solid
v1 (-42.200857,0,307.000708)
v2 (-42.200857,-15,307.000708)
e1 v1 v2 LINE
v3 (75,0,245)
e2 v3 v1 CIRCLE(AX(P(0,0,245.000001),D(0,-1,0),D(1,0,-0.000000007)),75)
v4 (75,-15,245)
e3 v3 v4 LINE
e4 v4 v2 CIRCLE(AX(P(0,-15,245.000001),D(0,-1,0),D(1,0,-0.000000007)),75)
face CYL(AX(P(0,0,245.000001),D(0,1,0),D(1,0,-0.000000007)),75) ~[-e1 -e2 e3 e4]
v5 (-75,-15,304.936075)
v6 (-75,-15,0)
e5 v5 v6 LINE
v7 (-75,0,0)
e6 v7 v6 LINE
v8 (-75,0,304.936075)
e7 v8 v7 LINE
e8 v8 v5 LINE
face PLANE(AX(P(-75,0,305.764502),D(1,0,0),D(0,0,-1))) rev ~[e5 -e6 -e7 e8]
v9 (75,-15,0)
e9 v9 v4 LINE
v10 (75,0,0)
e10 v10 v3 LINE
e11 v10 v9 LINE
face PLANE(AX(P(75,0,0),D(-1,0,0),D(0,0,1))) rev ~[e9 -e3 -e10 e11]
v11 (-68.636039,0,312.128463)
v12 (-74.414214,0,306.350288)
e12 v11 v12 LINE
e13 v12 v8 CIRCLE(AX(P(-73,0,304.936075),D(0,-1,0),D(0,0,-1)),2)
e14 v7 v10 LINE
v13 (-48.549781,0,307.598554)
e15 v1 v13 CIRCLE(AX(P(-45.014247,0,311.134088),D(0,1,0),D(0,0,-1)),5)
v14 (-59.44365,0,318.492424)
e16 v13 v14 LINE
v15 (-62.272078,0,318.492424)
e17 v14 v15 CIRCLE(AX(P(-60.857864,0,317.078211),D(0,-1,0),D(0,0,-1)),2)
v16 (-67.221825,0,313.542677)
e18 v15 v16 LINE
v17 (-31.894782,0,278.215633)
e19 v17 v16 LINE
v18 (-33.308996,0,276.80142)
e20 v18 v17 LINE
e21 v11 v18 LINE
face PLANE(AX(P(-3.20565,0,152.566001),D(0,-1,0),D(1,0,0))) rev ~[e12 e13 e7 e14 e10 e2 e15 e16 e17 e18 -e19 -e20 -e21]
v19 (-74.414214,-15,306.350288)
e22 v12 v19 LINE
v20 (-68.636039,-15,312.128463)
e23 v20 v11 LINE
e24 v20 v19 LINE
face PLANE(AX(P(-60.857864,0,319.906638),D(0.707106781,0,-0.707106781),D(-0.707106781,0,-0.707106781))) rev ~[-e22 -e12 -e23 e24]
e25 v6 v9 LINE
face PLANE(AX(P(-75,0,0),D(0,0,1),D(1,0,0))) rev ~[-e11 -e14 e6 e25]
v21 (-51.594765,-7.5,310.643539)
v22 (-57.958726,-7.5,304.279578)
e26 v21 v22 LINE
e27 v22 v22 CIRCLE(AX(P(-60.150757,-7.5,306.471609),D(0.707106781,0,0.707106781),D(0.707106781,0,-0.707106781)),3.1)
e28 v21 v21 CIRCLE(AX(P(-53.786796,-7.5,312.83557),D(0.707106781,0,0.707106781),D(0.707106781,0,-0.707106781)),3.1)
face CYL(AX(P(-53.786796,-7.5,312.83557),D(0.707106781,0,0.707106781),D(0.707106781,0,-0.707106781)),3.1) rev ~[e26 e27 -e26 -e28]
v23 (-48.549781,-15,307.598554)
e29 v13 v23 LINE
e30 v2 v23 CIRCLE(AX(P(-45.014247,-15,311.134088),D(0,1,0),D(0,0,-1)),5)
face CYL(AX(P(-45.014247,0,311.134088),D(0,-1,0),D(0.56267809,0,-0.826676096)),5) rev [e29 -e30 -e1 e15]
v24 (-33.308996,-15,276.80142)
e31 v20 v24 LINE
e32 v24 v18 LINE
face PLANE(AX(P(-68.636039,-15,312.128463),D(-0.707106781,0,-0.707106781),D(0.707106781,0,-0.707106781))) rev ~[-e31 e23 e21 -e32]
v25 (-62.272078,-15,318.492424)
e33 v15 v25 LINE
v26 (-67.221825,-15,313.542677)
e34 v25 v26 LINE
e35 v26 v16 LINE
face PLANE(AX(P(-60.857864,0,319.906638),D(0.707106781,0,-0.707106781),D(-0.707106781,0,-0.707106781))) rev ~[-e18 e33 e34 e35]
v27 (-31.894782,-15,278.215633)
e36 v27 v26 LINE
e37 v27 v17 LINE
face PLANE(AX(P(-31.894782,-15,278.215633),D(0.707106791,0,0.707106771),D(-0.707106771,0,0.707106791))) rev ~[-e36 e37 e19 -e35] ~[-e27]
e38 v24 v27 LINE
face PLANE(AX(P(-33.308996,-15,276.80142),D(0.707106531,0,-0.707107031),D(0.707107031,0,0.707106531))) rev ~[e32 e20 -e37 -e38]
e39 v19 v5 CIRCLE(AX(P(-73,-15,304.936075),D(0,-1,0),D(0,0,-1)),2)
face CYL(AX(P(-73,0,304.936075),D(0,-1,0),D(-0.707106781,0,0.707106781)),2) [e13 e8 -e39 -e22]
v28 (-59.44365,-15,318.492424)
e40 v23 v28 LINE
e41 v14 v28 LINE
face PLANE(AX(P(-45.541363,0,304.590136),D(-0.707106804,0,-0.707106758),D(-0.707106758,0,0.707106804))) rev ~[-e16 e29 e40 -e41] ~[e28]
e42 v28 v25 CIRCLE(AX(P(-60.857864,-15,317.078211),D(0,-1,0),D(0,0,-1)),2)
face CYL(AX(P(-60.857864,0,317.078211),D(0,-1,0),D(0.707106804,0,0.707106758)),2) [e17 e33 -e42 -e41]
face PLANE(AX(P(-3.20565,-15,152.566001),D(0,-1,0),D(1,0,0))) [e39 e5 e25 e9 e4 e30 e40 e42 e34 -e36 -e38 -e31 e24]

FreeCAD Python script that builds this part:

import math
import FreeCAD as App
import Part
import Sketcher

V = App.Vector
Q = App.Units.Quantity


def edges_at(feature, points):
    """Names of the edges that pass closest to the given points."""
    edges = feature.Shape.Edges
    near = lambda p: min(range(len(edges)), key=lambda i: edges[i].distToShape(Part.Vertex(*p))[0])
    return sorted({f"Edge{near(p) + 1}" for p in points})

doc = App.newDocument("Part")
params = doc.addObject("Spreadsheet::Sheet", "Params")
for row, (alias, value) in enumerate([
    ("sketch1_radius", "75 mm"),
    ("sketch1_height", "245 mm"),
    ("sketch1_length", "20.000001 mm"),
    ("pad1_length", "15 mm"),
    ("fillet_radius", "5 mm"),
    ("fillet2_radius", "2 mm"),
    ("fillet3_radius", "2 mm"),
    ("sketch2_length", "2.000001 mm"),
    ("sketch3_diameter", "6.2 mm"),
    ("pocket2_length", "9 mm"),
], start=1):
    params.set(f"A{row}", alias)
    params.set(f"B{row}", "=" + value)
    params.setAlias(f"B{row}", alias)

body = doc.addObject("PartDesign::Body", "Body")

sketch1 = body.newObject("Sketcher::SketchObject", "Sketch")
sketch1.AttachmentSupport = (doc.getObject("XZ_Plane"), [""])
sketch1.MapMode = "FlatFace"
sketch1.addGeometry([
    Part.LineSegment(V(-75, 306, 0), V(-75, 0, 0)),
    Part.LineSegment(V(-75, 0, 0), V(75, 0, 0)),
    Part.LineSegment(V(75, 0, 0), V(75, 245, 0)),
    Part.ArcOfCircle(Part.Circle(V(0, 245, 0), V(0, 0, 1), 75), math.radians(0), math.radians(127)),
    Part.LineSegment(V(-46, 305, 0), V(-61, 320, 0)),
    Part.LineSegment(V(-61, 320, 0), V(-75, 306, 0)),
], False)
sketch1.addConstraint([
    Sketcher.Constraint("Coincident", 0, 2, 1, 1),
    Sketcher.Constraint("Coincident", 1, 2, 2, 1),
    Sketcher.Constraint("Tangent", 2, 2, 3, 1),
    Sketcher.Constraint("Coincident", 3, 2, 4, 1),
    Sketcher.Constraint("Coincident", 4, 2, 5, 1),
    Sketcher.Constraint("Coincident", 5, 2, 0, 1),
    Sketcher.Constraint("Vertical", 0),
    Sketcher.Constraint("Horizontal", 1),
    Sketcher.Constraint("Vertical", 2),
    Sketcher.Constraint("Symmetric", 0, 2, 1, 2, -1, 1),
    Sketcher.Constraint("PointOnObject", 3, 3, -2),
    Sketcher.Constraint("Perpendicular", 4, 5),
    Sketcher.Constraint("Radius", 3, Q("75 mm")),
    Sketcher.Constraint("DistanceY", 2, 1, 2, 2, Q("245 mm")),
    Sketcher.Constraint("Angle", 4, Q("134.999998 deg")),
    Sketcher.Constraint("Distance", 5, Q("20.000001 mm")),
    Sketcher.Constraint("DistanceY", 0, 2, 0, 1, Q("305.764502 mm")),
])
sketch1.setExpression("Constraints[12]", "Params.sketch1_radius")
sketch1.setExpression("Constraints[13]", "Params.sketch1_height")
sketch1.setExpression("Constraints[15]", "Params.sketch1_length")
pad1 = body.newObject("PartDesign::Pad", "Pad")
pad1.Profile = sketch1
pad1.setExpression("Length", "Params.pad1_length")
doc.recompute()

fillet = body.newObject("PartDesign::Fillet", "Fillet")
fillet.Base = (pad1, edges_at(pad1, [(-45.541, -7.5, 304.59)]))
fillet.setExpression("Radius", "Params.fillet_radius")
doc.recompute()

fillet2 = body.newObject("PartDesign::Fillet", "Fillet001")
fillet2.Base = (fillet, edges_at(fillet, [(-60.858, -7.5, 319.907)]))
fillet2.setExpression("Radius", "Params.fillet2_radius")
doc.recompute()

fillet3 = body.newObject("PartDesign::Fillet", "Fillet002")
fillet3.Base = (fillet2, edges_at(fillet2, [(-75, -7.5, 305.765)]))
fillet3.setExpression("Radius", "Params.fillet3_radius")

sketch2 = body.newObject("Sketcher::SketchObject", "Sketch001")
sketch2.AttachmentSupport = (doc.getObject("XZ_Plane"), [""])
sketch2.MapMode = "FlatFace"
sketch2.AttachmentOffset = App.Placement(V(0, 0, 15), App.Rotation())
sketch2.addGeometry([
    Part.LineSegment(V(-67.2, 313.5, 0), V(-68.6, 312.1, 0)),
    Part.LineSegment(V(-68.6, 312.1, 0), V(-33.3, 276.8, 0)),
    Part.LineSegment(V(-33.3, 276.8, 0), V(-31.9, 278.2, 0)),
    Part.LineSegment(V(-31.9, 278.2, 0), V(-67.2, 313.5, 0)),
], False)
sketch2.addConstraint([
    Sketcher.Constraint("Coincident", 0, 2, 1, 1),
    Sketcher.Constraint("Coincident", 1, 2, 2, 1),
    Sketcher.Constraint("Coincident", 2, 2, 3, 1),
    Sketcher.Constraint("Coincident", 3, 2, 0, 1),
    Sketcher.Constraint("Perpendicular", 0, 1),
    Sketcher.Constraint("Perpendicular", 1, 2),
    Sketcher.Constraint("Perpendicular", 2, 3),
    Sketcher.Constraint("Angle", 0, Q("-135 deg")),
    Sketcher.Constraint("Distance", 0, Q("2.000001 mm")),
    Sketcher.Constraint("DistanceX", 0, 2, -1, 1, Q("68.636039 mm")),
    Sketcher.Constraint("DistanceY", -1, 1, 1, 2, Q("276.80142 mm")),
    Sketcher.Constraint("DistanceX", 2, 2, -1, 1, Q("31.894782 mm")),
])
sketch2.setExpression("Constraints[8]", "Params.sketch2_length")
pocket1 = body.newObject("PartDesign::Pocket", "Pocket")
pocket1.Profile = sketch2
pocket1.Type = "ThroughAll"

sketch3 = body.newObject("Sketcher::SketchObject", "Sketch002")
sketch3.Placement = App.Placement(V(129.524387, 0, 129.524387), App.Rotation(V(0.707106781, 0, -0.707106781), V(0, 0.999999999, 0), V(0.707106781, 0, 0.707106781), "ZXY"))
sketch3.addGeometry(Part.Circle(V(-259.2, -7.5, 0), V(0, 0, 1), 3.1), False)
sketch3.addConstraint([
    Sketcher.Constraint("Diameter", 0, Q("6.2 mm")),
    Sketcher.Constraint("DistanceY", 0, 3, -1, 1, Q("7.5 mm")),
    Sketcher.Constraint("DistanceX", 0, 3, -1, 1, Q("259.241161 mm")),
])
sketch3.setExpression("Constraints[0]", "Params.sketch3_diameter")
pocket2 = body.newObject("PartDesign::Pocket", "Pocket001")
pocket2.Profile = sketch3
pocket2.setExpression("Length", "Params.pocket2_length")

doc.recompute()
